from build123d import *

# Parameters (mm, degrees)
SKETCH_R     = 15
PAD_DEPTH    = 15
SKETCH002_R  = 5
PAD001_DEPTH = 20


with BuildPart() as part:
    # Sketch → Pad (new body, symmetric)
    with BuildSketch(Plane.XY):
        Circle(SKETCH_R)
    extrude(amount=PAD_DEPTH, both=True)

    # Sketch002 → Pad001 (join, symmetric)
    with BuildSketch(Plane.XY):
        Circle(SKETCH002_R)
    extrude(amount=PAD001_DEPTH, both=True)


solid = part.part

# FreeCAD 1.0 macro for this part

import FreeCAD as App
import Part
import Sketcher
from FreeCAD import Vector
Q = App.Units.Quantity

doc = App.newDocument("Part")
body = doc.addObject("PartDesign::Body", "Body")

# Sketch on XY plane
sketch1 = body.newObject("Sketcher::SketchObject", "Sketch")
sketch1.AttachmentSupport = (doc.getObject("XY_Plane"), [""])
sketch1.MapMode = "FlatFace"
sketch1.addGeometry(Part.Circle(Vector(0, 0, 0), Vector(0, 0, 1), 15), False)
sketch1.addConstraint(Sketcher.Constraint("Coincident", 0, 3, -1, 1))
sketch1.addConstraint(Sketcher.Constraint("Diameter", 0, Q("30 mm")))
pad1 = body.newObject("PartDesign::Pad", "Pad")
pad1.Profile = sketch1
pad1.Length = 30
pad1.Midplane = True

# Sketch on XY plane
sketch2 = body.newObject("Sketcher::SketchObject", "Sketch001")
sketch2.AttachmentSupport = (doc.getObject("XY_Plane"), [""])
sketch2.MapMode = "FlatFace"
sketch2.addGeometry(Part.Circle(Vector(0, 0, 0), Vector(0, 0, 1), 5), False)
sketch2.addConstraint(Sketcher.Constraint("Coincident", 0, 3, -1, 1))
sketch2.addConstraint(Sketcher.Constraint("Diameter", 0, Q("10 mm")))
pad2 = body.newObject("PartDesign::Pad", "Pad001")
pad2.Profile = sketch2
pad2.Length = 40
pad2.Midplane = True

doc.recompute()
